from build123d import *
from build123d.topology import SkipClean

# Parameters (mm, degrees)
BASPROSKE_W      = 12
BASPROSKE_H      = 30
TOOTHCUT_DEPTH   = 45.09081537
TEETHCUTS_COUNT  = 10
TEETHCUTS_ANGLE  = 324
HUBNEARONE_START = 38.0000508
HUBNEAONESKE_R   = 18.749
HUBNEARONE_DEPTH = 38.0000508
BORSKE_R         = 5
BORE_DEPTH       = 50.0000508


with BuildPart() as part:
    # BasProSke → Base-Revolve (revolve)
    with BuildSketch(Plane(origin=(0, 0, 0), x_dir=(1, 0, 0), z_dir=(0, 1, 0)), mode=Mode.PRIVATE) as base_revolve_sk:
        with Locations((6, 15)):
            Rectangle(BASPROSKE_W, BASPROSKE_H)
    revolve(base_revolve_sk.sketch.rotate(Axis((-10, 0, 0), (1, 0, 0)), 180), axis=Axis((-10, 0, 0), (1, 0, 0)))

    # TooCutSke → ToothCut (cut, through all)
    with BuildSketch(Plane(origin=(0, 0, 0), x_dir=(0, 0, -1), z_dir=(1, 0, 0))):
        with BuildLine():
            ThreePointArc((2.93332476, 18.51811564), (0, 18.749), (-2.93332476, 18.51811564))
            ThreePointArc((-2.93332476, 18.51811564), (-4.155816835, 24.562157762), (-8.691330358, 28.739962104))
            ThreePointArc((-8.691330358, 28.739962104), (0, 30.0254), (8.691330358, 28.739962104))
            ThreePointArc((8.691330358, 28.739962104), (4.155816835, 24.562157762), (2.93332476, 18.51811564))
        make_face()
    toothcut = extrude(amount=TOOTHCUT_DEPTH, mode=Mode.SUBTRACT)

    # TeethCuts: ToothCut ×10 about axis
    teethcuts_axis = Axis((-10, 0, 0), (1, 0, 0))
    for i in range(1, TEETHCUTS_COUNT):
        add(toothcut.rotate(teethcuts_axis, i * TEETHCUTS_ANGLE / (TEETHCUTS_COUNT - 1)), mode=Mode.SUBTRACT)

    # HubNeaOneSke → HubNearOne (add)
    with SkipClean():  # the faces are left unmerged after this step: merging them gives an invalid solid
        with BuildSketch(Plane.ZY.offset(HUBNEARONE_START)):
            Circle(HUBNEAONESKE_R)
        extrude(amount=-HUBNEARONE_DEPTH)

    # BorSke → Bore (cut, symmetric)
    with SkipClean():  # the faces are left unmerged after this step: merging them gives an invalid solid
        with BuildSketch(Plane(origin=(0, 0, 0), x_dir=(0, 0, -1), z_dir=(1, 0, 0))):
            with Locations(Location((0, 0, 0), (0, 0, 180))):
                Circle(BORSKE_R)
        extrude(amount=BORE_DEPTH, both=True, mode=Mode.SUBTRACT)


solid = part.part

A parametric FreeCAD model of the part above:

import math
import FreeCAD as App
import Part
import Sketcher
from FreeCAD import Vector


def add_polygon(sketch, points):
    """Adds a closed chain of lines whose ends are joined by coincident constraints."""
    first, n = sketch.GeometryCount, len(points)
    for a, b in zip(points, points[1:] + points[:1]):
        sketch.addGeometry(Part.LineSegment(App.Vector(*a, 0), App.Vector(*b, 0)), False)
    for i in range(n):
        sketch.addConstraint(Sketcher.Constraint("Coincident", first + i, 2, first + (i + 1) % n, 1))

doc = App.newDocument("Part")
body = doc.addObject("PartDesign::Body", "Body")

sketch1 = body.newObject("Sketcher::SketchObject", "Sketch")
sketch1.AttachmentSupport = (doc.getObject("XZ_Plane"), [""])
sketch1.MapMode = "FlatFace"
add_polygon(sketch1, [(0, -30), (0, 0), (12, 0), (12, -30)])
sketch1.addConstraint(Sketcher.Constraint("Vertical", 0))
sketch1.addConstraint(Sketcher.Constraint("Horizontal", 1))
sketch1.addConstraint(Sketcher.Constraint("Vertical", 2))
sketch1.addConstraint(Sketcher.Constraint("Horizontal", 3))
sketch1.addConstraint(Sketcher.Constraint("Coincident", 0, 2, -1, 1))
sketch1.addConstraint(Sketcher.Constraint("DistanceX", 1, 1, 1, 2, 12.0))
sketch1.addConstraint(Sketcher.Constraint("DistanceY", 0, 1, 0, 2, 30.0))
revolution = body.newObject("PartDesign::Revolution", "Revolution")
revolution.Profile = sketch1
revolution.ReferenceAxis = (sketch1, ["H_Axis"])
revolution.Angle = 360

sketch2 = body.newObject("Sketcher::SketchObject", "Sketch001")
sketch2.AttachmentSupport = (doc.getObject("YZ_Plane"), [""])
sketch2.MapMode = "FlatFace"
sketch2.addGeometry(Part.ArcOfCircle(Part.Circle(Vector(0, 0, 0), Vector(0, 0, 1), 19), math.radians(-9), math.radians(9)), False)
sketch2.addGeometry(Part.ArcOfCircle(Part.Circle(Vector(20, -13, 0), Vector(0, 0, 1), 10), math.radians(25), math.radians(97)), False)
sketch2.addGeometry(Part.ArcOfCircle(Part.Circle(Vector(0, 0, 0), Vector(0, 0, 1), 30), math.radians(-17), math.radians(17)), False)
sketch2.addGeometry(Part.ArcOfCircle(Part.Circle(Vector(20, 13, 0), Vector(0, 0, 1), 10), math.radians(-97), math.radians(-25)), False)
sketch2.addConstraint(Sketcher.Constraint("Coincident", 0, 1, 1, 2))
sketch2.addConstraint(Sketcher.Constraint("Coincident", 1, 1, 2, 1))
sketch2.addConstraint(Sketcher.Constraint("Coincident", 2, 2, 3, 2))
sketch2.addConstraint(Sketcher.Constraint("Coincident", 3, 1, 0, 2))
sketch2.addConstraint(Sketcher.Constraint("Coincident", 0, 3, -1, 1))
sketch2.addConstraint(Sketcher.Constraint("Coincident", 2, 3, -1, 1))
sketch2.addConstraint(Sketcher.Constraint("Equal", 1, 3))
sketch2.addConstraint(Sketcher.Constraint("Symmetric", 1, 3, 3, 3, -1))
sketch2.addConstraint(Sketcher.Constraint("Radius", 1, 10.0))
sketch2.addConstraint(Sketcher.Constraint("Radius", 0, 18.749))
sketch2.addConstraint(Sketcher.Constraint("Radius", 2, 30.0254))
sketch2.addConstraint(Sketcher.Constraint("DistanceY", 1, 1, -1, 1, 8.69133))
sketch2.addConstraint(Sketcher.Constraint("DistanceX", 0, 1, 1, 3, 1.13611))
pocket1 = body.newObject("PartDesign::Pocket", "Pocket")
pocket1.Profile = sketch2
pocket1.Type = "ThroughAll"
pocket1.Reversed = True
doc.recompute()

polarpattern = body.newObject("PartDesign::PolarPattern", "PolarPattern")
polarpattern.Originals = [pocket1]
polarpattern.Axis = (doc.getObject("X_Axis"), [""])
polarpattern.Angle = 360
polarpattern.Occurrences = 10
body.Tip = polarpattern

sketch3 = body.newObject("Sketcher::SketchObject", "Sketch002")
sketch3.AttachmentSupport = (doc.getObject("YZ_Plane"), [""])
sketch3.MapMode = "FlatFace"
sketch3.AttachmentOffset = App.Placement(Vector(0, 0, -38.000051), App.Rotation())
sketch3.addGeometry(Part.Circle(Vector(0, 0, 0), Vector(0, 0, 1), 19), False)
sketch3.addConstraint(Sketcher.Constraint("Coincident", 0, 3, -1, 1))
sketch3.addConstraint(Sketcher.Constraint("Diameter", 0, 37.498))
pad1 = body.newObject("PartDesign::Pad", "Pad")
pad1.Profile = sketch3
pad1.Length = 38.000051

sketch4 = body.newObject("Sketcher::SketchObject", "Sketch003")
sketch4.AttachmentSupport = (doc.getObject("YZ_Plane"), [""])
sketch4.MapMode = "FlatFace"
sketch4.addGeometry(Part.Circle(Vector(0, 0, 0), Vector(0, 0, 1), 5), False)
sketch4.addConstraint(Sketcher.Constraint("Coincident", 0, 3, -1, 1))
sketch4.addConstraint(Sketcher.Constraint("Diameter", 0, 10.0))
pocket2 = body.newObject("PartDesign::Pocket", "Pocket001")
pocket2.Profile = sketch4
pocket2.Length = 100.000102
pocket2.Midplane = True

doc.recompute()
